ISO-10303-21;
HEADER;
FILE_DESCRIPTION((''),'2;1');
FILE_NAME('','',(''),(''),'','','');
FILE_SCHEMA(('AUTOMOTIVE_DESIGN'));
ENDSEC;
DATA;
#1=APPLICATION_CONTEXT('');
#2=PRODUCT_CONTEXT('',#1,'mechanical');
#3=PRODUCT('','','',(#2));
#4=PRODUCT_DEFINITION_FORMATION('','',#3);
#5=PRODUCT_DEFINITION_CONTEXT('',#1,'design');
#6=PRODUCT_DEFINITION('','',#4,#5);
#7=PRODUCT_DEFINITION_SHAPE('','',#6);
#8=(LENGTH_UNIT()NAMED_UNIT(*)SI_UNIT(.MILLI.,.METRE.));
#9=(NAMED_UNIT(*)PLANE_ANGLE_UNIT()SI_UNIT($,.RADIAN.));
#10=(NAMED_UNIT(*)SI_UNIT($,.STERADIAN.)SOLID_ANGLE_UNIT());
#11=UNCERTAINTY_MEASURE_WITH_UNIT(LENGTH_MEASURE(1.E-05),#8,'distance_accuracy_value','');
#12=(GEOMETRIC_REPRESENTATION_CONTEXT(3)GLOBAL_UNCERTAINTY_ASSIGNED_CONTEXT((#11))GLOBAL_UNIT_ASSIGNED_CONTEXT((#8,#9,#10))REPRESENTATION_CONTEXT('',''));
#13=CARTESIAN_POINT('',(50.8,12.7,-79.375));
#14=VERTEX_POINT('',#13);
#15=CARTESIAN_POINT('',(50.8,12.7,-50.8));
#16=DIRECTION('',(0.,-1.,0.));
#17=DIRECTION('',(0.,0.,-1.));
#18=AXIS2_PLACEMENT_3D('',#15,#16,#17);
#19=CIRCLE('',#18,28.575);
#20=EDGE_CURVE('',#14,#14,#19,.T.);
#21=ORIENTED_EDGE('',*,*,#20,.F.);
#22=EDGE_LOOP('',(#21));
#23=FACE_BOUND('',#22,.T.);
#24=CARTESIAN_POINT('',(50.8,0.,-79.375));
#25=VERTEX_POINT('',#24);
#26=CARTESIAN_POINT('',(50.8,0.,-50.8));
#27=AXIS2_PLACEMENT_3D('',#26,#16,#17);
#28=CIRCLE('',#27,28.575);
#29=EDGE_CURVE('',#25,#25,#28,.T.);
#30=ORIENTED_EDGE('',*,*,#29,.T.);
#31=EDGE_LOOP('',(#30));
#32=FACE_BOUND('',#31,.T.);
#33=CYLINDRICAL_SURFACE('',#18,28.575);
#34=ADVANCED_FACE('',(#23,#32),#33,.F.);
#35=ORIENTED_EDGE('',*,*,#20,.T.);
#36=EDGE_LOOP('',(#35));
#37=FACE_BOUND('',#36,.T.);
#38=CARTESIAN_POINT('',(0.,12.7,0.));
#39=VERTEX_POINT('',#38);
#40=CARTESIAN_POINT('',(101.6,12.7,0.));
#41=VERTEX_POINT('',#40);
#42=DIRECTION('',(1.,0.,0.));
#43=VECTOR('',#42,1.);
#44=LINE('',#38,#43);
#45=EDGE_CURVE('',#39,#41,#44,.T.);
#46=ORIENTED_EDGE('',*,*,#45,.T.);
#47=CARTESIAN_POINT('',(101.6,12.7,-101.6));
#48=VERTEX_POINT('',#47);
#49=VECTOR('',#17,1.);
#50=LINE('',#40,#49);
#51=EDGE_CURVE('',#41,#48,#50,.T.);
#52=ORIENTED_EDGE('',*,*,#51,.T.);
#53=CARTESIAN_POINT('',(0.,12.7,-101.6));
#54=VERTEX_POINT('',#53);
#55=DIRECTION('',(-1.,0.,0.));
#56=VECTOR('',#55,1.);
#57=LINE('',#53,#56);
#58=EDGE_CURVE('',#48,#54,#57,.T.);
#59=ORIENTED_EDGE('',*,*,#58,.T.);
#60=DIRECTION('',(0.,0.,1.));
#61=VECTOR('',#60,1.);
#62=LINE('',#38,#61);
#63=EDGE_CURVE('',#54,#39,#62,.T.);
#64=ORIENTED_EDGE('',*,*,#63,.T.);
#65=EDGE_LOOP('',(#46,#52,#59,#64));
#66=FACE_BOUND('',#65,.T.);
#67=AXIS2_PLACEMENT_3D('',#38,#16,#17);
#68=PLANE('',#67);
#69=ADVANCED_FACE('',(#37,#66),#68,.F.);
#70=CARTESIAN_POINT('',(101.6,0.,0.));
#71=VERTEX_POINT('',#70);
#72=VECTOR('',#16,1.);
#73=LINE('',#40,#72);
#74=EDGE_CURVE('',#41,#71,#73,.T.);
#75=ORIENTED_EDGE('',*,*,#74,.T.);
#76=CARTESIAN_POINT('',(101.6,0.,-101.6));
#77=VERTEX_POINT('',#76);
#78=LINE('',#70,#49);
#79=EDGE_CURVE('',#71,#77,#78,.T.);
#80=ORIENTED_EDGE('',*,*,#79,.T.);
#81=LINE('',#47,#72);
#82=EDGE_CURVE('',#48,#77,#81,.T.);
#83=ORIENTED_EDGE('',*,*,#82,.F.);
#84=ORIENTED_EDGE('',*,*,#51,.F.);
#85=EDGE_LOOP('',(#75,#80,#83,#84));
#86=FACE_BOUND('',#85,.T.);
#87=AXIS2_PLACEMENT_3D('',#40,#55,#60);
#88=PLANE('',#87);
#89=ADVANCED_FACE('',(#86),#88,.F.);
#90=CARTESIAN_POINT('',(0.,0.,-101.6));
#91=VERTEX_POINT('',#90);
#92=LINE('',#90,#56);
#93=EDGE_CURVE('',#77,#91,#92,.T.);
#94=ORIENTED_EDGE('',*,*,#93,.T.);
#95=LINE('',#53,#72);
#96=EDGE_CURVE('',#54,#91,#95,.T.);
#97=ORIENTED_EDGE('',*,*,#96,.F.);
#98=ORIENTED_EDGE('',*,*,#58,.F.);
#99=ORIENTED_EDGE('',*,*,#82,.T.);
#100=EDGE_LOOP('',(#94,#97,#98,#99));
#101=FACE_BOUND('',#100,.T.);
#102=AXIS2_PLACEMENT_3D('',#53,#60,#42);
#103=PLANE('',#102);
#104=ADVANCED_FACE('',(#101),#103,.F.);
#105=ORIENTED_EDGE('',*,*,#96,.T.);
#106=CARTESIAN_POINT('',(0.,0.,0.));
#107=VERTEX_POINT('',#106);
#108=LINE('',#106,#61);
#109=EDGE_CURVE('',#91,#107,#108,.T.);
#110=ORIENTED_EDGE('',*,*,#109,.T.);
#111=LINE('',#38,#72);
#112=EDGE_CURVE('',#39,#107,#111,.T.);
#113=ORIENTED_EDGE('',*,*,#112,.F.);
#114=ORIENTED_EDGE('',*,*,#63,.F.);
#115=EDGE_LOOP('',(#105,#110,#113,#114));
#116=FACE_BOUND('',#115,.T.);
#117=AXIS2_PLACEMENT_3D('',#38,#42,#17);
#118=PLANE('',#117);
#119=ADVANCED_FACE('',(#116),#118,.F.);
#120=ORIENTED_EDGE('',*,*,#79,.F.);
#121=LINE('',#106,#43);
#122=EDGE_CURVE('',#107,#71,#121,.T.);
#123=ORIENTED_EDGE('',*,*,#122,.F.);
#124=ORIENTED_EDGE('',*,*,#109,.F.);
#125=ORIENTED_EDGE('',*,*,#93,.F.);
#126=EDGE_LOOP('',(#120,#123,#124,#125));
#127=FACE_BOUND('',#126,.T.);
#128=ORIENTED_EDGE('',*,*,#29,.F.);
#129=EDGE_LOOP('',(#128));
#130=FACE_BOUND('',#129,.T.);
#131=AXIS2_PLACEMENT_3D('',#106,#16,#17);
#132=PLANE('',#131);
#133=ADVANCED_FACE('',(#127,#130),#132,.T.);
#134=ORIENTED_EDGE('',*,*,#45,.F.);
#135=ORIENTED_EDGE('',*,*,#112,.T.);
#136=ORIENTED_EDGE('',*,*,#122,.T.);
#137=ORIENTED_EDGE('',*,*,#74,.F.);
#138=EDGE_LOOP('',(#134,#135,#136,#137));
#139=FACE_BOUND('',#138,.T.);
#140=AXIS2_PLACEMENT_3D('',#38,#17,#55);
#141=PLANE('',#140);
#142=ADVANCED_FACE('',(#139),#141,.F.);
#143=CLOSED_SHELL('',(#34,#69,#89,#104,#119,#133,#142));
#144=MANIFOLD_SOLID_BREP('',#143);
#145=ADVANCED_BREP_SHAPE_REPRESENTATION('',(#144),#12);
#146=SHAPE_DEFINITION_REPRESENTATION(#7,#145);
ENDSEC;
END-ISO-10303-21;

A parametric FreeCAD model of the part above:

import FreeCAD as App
import Part
import Sketcher
Q = App.Units.Quantity


def add_polygon(sketch, points):
    """Adds a closed chain of lines whose ends are joined by coincident constraints."""
    first, n = sketch.GeometryCount, len(points)
    for a, b in zip(points, points[1:] + points[:1]):
        sketch.addGeometry(Part.LineSegment(App.Vector(*a, 0), App.Vector(*b, 0)), False)
    for i in range(n):
        sketch.addConstraint(Sketcher.Constraint("Coincident", first + i, 2, first + (i + 1) % n, 1))

doc = App.newDocument("Part")
body = doc.addObject("PartDesign::Body", "Body")

# Sketch on XZ plane
sketch1 = body.newObject("Sketcher::SketchObject", "Sketch")
sketch1.AttachmentSupport = (doc.getObject("XZ_Plane"), [""])
sketch1.MapMode = "FlatFace"
add_polygon(sketch1, [(0, -102), (0, 0), (102, 0), (102, -102)])  # lines 0-3
sketch1.addConstraint([
    Sketcher.Constraint("Vertical", 0),
    Sketcher.Constraint("Horizontal", 1),
    Sketcher.Constraint("Vertical", 2),
    Sketcher.Constraint("Horizontal", 3),
    Sketcher.Constraint("Coincident", 0, 2, -1, 1),
    Sketcher.Constraint("Equal", 3, 0),
    Sketcher.Constraint("DistanceX", 1, 1, 1, 2, Q("4 in")),
])
pad1 = body.newObject("PartDesign::Pad", "Pad")
pad1.Profile = sketch1
pad1.Length = Q("0.5 in")
pad1.Reversed = True

# Sketch on XZ plane
sketch2 = body.newObject("Sketcher::SketchObject", "Sketch001")
sketch2.AttachmentSupport = (doc.getObject("XZ_Plane"), [""])
sketch2.MapMode = "FlatFace"
sketch2.addGeometry(Part.Circle(App.Vector(51, -51, 0), App.Vector(0, 0, 1), 29), False)
sketch2.addConstraint([
    Sketcher.Constraint("Diameter", 0, Q("2.25 in")),
    Sketcher.Constraint("DistanceX", -1, 1, 0, 3, Q("2 in")),
    Sketcher.Constraint("DistanceY", 0, 3, -1, 1, Q("2 in")),
])
pocket1 = body.newObject("PartDesign::Pocket", "Pocket")
pocket1.Profile = sketch2
pocket1.Length = Q("0.5 in")

doc.recompute()
